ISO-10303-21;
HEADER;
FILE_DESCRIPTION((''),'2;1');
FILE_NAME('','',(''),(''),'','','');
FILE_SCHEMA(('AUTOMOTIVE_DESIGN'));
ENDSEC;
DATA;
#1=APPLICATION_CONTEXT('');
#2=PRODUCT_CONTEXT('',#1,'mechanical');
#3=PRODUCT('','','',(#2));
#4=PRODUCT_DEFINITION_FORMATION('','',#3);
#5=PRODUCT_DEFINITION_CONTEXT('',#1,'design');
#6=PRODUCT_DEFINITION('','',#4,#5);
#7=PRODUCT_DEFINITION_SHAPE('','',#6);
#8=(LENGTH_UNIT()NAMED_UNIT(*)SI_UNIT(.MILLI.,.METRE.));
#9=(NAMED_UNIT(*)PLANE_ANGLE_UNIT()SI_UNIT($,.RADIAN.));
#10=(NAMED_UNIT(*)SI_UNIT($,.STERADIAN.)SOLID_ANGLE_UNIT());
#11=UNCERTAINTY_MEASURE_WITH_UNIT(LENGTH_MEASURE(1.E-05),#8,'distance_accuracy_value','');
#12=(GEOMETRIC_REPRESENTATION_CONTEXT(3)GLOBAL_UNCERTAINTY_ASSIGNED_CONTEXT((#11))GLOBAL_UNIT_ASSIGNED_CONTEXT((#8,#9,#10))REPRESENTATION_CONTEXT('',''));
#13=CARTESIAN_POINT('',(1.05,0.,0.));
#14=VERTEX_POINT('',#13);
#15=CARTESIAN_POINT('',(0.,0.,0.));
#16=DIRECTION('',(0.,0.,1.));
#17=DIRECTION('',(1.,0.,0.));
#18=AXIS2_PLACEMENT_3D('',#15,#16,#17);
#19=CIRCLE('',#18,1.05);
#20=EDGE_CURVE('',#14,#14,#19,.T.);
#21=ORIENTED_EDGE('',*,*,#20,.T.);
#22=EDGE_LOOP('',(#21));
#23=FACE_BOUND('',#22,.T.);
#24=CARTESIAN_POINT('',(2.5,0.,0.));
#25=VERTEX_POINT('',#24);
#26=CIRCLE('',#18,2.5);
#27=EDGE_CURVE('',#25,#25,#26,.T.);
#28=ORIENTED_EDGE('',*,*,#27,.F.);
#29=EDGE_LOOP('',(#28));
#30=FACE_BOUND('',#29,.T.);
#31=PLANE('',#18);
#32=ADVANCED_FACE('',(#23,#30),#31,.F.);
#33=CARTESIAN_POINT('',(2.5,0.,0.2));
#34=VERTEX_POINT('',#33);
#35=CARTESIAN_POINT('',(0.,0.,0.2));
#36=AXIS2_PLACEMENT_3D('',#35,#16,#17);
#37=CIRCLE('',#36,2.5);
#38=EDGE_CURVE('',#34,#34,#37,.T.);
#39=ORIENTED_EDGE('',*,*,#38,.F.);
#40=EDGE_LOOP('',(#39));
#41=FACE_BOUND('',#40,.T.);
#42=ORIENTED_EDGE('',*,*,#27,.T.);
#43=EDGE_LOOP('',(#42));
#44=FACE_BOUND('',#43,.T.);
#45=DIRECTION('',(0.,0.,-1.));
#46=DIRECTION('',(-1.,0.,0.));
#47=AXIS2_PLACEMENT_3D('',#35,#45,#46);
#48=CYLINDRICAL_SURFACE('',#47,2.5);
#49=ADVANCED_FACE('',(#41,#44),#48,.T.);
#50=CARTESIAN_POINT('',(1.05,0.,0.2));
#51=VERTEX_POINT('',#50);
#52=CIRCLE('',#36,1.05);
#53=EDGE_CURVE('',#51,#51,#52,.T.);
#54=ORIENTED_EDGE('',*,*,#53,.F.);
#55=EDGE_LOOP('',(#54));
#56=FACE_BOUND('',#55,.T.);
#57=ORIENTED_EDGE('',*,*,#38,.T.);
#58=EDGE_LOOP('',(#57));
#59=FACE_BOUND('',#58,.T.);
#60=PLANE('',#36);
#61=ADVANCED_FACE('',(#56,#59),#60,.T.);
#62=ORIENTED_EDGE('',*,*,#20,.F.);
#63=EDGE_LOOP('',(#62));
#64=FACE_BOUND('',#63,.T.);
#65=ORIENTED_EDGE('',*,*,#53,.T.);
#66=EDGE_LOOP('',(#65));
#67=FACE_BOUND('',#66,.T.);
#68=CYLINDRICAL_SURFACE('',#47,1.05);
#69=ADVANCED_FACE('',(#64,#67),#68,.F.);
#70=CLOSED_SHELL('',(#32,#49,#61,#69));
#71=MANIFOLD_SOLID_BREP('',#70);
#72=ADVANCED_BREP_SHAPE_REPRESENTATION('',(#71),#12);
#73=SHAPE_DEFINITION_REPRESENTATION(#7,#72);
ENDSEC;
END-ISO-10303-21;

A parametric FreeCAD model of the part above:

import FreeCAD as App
import Part
import Sketcher
Q = App.Units.Quantity

doc = App.newDocument("Part")
body = doc.addObject("PartDesign::Body", "Body")

# Sketch on XY plane
sketch1 = body.newObject("Sketcher::SketchObject", "Sketch")
sketch1.AttachmentSupport = (doc.getObject("XY_Plane"), [""])
sketch1.MapMode = "FlatFace"
sketch1.addGeometry(Part.Circle(App.Vector(0, 0, 0), App.Vector(0, 0, 1), 2.5), False)
sketch1.addGeometry(Part.Circle(App.Vector(0, 0, 0), App.Vector(0, 0, 1), 1.1), False)
sketch1.addConstraint(Sketcher.Constraint("Coincident", 0, 3, -1, 1))
sketch1.addConstraint(Sketcher.Constraint("Coincident", 1, 3, -1, 1))
sketch1.addConstraint(Sketcher.Constraint("Diameter", 0, Q("5 mm")))
sketch1.addConstraint(Sketcher.Constraint("Diameter", 1, Q("2.1 mm")))
pad1 = body.newObject("PartDesign::Pad", "Pad")
pad1.Profile = sketch1
pad1.Length = 0.2

doc.recompute()
